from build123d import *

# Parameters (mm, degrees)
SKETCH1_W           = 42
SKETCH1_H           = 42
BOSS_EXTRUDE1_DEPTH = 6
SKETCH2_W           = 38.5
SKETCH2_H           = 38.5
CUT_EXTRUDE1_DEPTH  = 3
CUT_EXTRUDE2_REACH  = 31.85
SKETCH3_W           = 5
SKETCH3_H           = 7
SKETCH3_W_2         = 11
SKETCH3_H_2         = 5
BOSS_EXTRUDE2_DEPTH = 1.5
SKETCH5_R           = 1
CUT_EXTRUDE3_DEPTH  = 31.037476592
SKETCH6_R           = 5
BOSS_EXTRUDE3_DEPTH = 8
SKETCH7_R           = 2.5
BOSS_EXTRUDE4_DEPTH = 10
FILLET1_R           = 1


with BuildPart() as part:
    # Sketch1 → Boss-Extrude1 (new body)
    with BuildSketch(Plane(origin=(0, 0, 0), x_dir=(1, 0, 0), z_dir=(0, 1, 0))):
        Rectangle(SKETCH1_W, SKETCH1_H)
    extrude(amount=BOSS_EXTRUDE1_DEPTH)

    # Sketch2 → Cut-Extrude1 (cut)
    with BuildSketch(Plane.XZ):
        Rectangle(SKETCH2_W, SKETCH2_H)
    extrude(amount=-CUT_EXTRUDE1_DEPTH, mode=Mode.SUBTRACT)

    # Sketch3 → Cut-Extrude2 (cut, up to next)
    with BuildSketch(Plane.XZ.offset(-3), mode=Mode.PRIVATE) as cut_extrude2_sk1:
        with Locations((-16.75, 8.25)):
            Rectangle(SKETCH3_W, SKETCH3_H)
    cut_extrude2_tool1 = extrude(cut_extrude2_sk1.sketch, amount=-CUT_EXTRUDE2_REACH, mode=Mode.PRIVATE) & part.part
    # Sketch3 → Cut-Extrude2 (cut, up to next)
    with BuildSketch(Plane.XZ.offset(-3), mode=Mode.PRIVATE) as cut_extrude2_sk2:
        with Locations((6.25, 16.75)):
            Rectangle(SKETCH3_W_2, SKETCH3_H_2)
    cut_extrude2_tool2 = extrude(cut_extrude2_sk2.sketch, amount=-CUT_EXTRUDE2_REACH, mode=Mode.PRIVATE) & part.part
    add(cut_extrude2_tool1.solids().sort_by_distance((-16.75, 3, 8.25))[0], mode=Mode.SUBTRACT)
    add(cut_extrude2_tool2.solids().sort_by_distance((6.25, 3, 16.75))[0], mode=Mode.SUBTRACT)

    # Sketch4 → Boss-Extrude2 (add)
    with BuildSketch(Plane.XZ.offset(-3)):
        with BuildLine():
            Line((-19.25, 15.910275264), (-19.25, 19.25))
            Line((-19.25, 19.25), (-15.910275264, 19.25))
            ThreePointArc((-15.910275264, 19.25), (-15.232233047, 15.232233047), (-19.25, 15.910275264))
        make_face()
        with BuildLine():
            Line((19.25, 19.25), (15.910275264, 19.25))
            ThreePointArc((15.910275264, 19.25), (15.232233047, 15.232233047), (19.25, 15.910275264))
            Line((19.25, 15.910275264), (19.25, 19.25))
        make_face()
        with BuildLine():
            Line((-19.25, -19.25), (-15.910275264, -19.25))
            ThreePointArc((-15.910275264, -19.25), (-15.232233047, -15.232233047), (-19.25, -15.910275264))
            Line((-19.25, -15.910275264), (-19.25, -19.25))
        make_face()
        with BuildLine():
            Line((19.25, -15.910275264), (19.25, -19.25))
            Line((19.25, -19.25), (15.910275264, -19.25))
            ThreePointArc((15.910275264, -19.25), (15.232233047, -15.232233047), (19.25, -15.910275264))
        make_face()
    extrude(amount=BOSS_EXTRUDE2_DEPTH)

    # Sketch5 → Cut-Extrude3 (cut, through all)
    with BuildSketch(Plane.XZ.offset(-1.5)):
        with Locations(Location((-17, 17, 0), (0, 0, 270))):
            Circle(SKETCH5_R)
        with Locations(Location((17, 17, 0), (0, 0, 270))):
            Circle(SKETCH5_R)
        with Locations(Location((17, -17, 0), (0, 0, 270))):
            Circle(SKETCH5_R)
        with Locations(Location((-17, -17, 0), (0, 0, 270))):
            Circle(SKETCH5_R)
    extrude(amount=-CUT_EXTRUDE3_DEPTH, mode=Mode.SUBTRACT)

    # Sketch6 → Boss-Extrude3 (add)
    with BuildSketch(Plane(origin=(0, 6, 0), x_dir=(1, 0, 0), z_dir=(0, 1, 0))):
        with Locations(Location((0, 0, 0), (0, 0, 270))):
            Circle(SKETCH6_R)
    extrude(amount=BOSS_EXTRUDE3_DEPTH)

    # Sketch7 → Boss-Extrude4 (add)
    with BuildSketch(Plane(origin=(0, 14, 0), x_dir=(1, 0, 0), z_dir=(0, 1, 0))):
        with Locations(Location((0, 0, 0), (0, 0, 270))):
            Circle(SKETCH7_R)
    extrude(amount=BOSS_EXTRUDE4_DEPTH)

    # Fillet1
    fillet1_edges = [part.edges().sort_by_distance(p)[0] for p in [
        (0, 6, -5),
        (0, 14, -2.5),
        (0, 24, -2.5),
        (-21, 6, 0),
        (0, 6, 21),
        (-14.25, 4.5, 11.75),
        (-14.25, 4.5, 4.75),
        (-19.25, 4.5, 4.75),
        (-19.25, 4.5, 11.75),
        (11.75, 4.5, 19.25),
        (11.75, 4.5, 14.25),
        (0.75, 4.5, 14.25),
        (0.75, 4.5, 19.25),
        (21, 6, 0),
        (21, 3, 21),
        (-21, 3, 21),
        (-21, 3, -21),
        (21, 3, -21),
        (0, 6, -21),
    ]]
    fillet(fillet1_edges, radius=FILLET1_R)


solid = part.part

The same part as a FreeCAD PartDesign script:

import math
import FreeCAD as App
import Part
import Sketcher

V = App.Vector


def edges_at(feature, points):
    """Names of the edges that pass closest to the given points."""
    edges = feature.Shape.Edges
    near = lambda p: min(range(len(edges)), key=lambda i: edges[i].distToShape(Part.Vertex(*p))[0])
    return sorted({f"Edge{near(p) + 1}" for p in points})

doc = App.newDocument("Part")
params = doc.addObject("Spreadsheet::Sheet", "Params")
for row, (alias, value) in enumerate([
    ("sketch1_width", "42 mm"),
    ("pad1_length", "6 mm"),
    ("sketch2_width", "38.5 mm"),
    ("pocket1_length", "3 mm"),
    ("sketch3_width", "5 mm"),
    ("sketch3_height", "7 mm"),
    ("sketch4_width", "11 mm"),
    ("sketch4_height", "5 mm"),
    ("sketch5_radius", "2.5 mm"),
    ("pad2_length", "1.5 mm"),
    ("sketch6_diameter", "2 mm"),
    ("sketch7_diameter", "10 mm"),
    ("pad3_length", "8 mm"),
    ("sketch8_diameter", "5 mm"),
    ("pad4_length", "10 mm"),
    ("fillet_radius", "1 mm"),
], start=1):
    params.set(f"A{row}", alias)
    params.set(f"B{row}", "=" + value)
    params.setAlias(f"B{row}", alias)

body = doc.addObject("PartDesign::Body", "Body")

# Sketch on XZ plane
sketch1 = body.newObject("Sketcher::SketchObject", "Sketch")
sketch1.AttachmentSupport = (doc.getObject("XZ_Plane"), [""])
sketch1.MapMode = "FlatFace"
sketch1.addGeometry([
    Part.LineSegment(V(-21, -21, 0), V(-21, 21, 0)),
    Part.LineSegment(V(-21, 21, 0), V(21, 21, 0)),
    Part.LineSegment(V(21, 21, 0), V(21, -21, 0)),
    Part.LineSegment(V(21, -21, 0), V(-21, -21, 0)),
], False)
sketch1.addConstraint([
    Sketcher.Constraint("Coincident", 0, 2, 1, 1),
    Sketcher.Constraint("Coincident", 1, 2, 2, 1),
    Sketcher.Constraint("Coincident", 2, 2, 3, 1),
    Sketcher.Constraint("Coincident", 3, 2, 0, 1),
    Sketcher.Constraint("Vertical", 0),
    Sketcher.Constraint("Horizontal", 1),
    Sketcher.Constraint("Vertical", 2),
    Sketcher.Constraint("Horizontal", 3),
    Sketcher.Constraint("Symmetric", 0, 2, 2, 2, -1, 1),
    Sketcher.Constraint("Equal", 3, 0),
    Sketcher.Constraint("DistanceX", 1, 1, 1, 2, 42.0),
])
sketch1.setExpression("Constraints[10]", "Params.sketch1_width")
pad1 = body.newObject("PartDesign::Pad", "Pad")
pad1.Profile = sketch1
pad1.setExpression("Length", "Params.pad1_length")
pad1.Reversed = True

# Sketch on XZ plane
sketch2 = body.newObject("Sketcher::SketchObject", "Sketch001")
sketch2.AttachmentSupport = (doc.getObject("XZ_Plane"), [""])
sketch2.MapMode = "FlatFace"
sketch2.addGeometry([
    Part.LineSegment(V(-19, 19, 0), V(-19, -19, 0)),
    Part.LineSegment(V(-19, -19, 0), V(19, -19, 0)),
    Part.LineSegment(V(19, -19, 0), V(19, 19, 0)),
    Part.LineSegment(V(19, 19, 0), V(-19, 19, 0)),
], False)
sketch2.addConstraint([
    Sketcher.Constraint("Coincident", 0, 2, 1, 1),
    Sketcher.Constraint("Coincident", 1, 2, 2, 1),
    Sketcher.Constraint("Coincident", 2, 2, 3, 1),
    Sketcher.Constraint("Coincident", 3, 2, 0, 1),
    Sketcher.Constraint("Vertical", 0),
    Sketcher.Constraint("Horizontal", 1),
    Sketcher.Constraint("Vertical", 2),
    Sketcher.Constraint("Horizontal", 3),
    Sketcher.Constraint("Symmetric", 0, 2, 2, 2, -1, 1),
    Sketcher.Constraint("Equal", 3, 0),
    Sketcher.Constraint("DistanceX", 1, 1, 1, 2, 38.5),
])
sketch2.setExpression("Constraints[10]", "Params.sketch2_width")
pocket1 = body.newObject("PartDesign::Pocket", "Pocket")
pocket1.Profile = sketch2
pocket1.setExpression("Length", "Params.pocket1_length")

# Sketch on XZ plane
sketch3 = body.newObject("Sketcher::SketchObject", "Sketch002")
sketch3.AttachmentSupport = (doc.getObject("XZ_Plane"), [""])
sketch3.MapMode = "FlatFace"
sketch3.AttachmentOffset = App.Placement(V(0, 0, -3), App.Rotation())
sketch3.addGeometry([
    Part.LineSegment(V(-19, 12, 0), V(-19, 5, 0)),
    Part.LineSegment(V(-19, 5, 0), V(-14, 5, 0)),
    Part.LineSegment(V(-14, 5, 0), V(-14, 12, 0)),
    Part.LineSegment(V(-14, 12, 0), V(-19, 12, 0)),
], False)
sketch3.addConstraint([
    Sketcher.Constraint("Coincident", 0, 2, 1, 1),
    Sketcher.Constraint("Coincident", 1, 2, 2, 1),
    Sketcher.Constraint("Coincident", 2, 2, 3, 1),
    Sketcher.Constraint("Coincident", 3, 2, 0, 1),
    Sketcher.Constraint("Vertical", 0),
    Sketcher.Constraint("Horizontal", 1),
    Sketcher.Constraint("Vertical", 2),
    Sketcher.Constraint("Horizontal", 3),
    Sketcher.Constraint("DistanceX", 1, 1, 1, 2, 5.0),
    Sketcher.Constraint("DistanceY", 0, 2, 0, 1, 7.0),
    Sketcher.Constraint("DistanceX", 0, 2, -1, 1, 19.25),
    Sketcher.Constraint("DistanceY", -1, 1, 0, 2, 4.75),
])
sketch3.setExpression("Constraints[8]", "Params.sketch3_width")
sketch3.setExpression("Constraints[9]", "Params.sketch3_height")
pocket2 = body.newObject("PartDesign::Pocket", "Pocket001")
pocket2.Profile = sketch3
pocket2.Type = "UpToFirst"

# Sketch on XZ plane
sketch4 = body.newObject("Sketcher::SketchObject", "Sketch003")
sketch4.AttachmentSupport = (doc.getObject("XZ_Plane"), [""])
sketch4.MapMode = "FlatFace"
sketch4.AttachmentOffset = App.Placement(V(0, 0, -3), App.Rotation())
sketch4.addGeometry([
    Part.LineSegment(V(1, 19, 0), V(1, 14, 0)),
    Part.LineSegment(V(1, 14, 0), V(12, 14, 0)),
    Part.LineSegment(V(12, 14, 0), V(12, 19, 0)),
    Part.LineSegment(V(12, 19, 0), V(1, 19, 0)),
], False)
sketch4.addConstraint([
    Sketcher.Constraint("Coincident", 0, 2, 1, 1),
    Sketcher.Constraint("Coincident", 1, 2, 2, 1),
    Sketcher.Constraint("Coincident", 2, 2, 3, 1),
    Sketcher.Constraint("Coincident", 3, 2, 0, 1),
    Sketcher.Constraint("Vertical", 0),
    Sketcher.Constraint("Horizontal", 1),
    Sketcher.Constraint("Vertical", 2),
    Sketcher.Constraint("Horizontal", 3),
    Sketcher.Constraint("DistanceX", 1, 1, 1, 2, 11.0),
    Sketcher.Constraint("DistanceY", 0, 2, 0, 1, 5.0),
    Sketcher.Constraint("DistanceX", -1, 1, 0, 2, 0.75),
    Sketcher.Constraint("DistanceY", -1, 1, 0, 2, 14.25),
])
sketch4.setExpression("Constraints[8]", "Params.sketch4_width")
sketch4.setExpression("Constraints[9]", "Params.sketch4_height")
pocket3 = body.newObject("PartDesign::Pocket", "Pocket002")
pocket3.Profile = sketch4
pocket3.Type = "UpToFirst"

# Sketch on XZ plane
sketch5 = body.newObject("Sketcher::SketchObject", "Sketch004")
sketch5.AttachmentSupport = (doc.getObject("XZ_Plane"), [""])
sketch5.MapMode = "FlatFace"
sketch5.AttachmentOffset = App.Placement(V(0, 0, -3), App.Rotation())
sketch5.addGeometry([
    Part.LineSegment(V(-19.2, 19.2, 0), V(-19.2, 15.9, 0)),  # 0
    Part.ArcOfCircle(Part.Circle(V(-17, 17, 0), V(0, 0, 1), 2.5), math.radians(-154), math.radians(64)),  # 1
    Part.LineSegment(V(-15.9, 19.2, 0), V(-19.2, 19.2, 0)),  # 2
    Part.LineSegment(V(19.2, 19.2, 0), V(15.9, 19.2, 0)),  # 3
    Part.ArcOfCircle(Part.Circle(V(17, 17, 0), V(0, 0, 1), 2.5), math.radians(116), math.radians(334)),  # 4
    Part.LineSegment(V(19.2, 15.9, 0), V(19.2, 19.2, 0)),  # 5
    Part.LineSegment(V(-19.2, -19.2, 0), V(-15.9, -19.2, 0)),  # 6
    Part.ArcOfCircle(Part.Circle(V(-17, -17, 0), V(0, 0, 1), 2.5), math.radians(-64), math.radians(154)),  # 7
    Part.LineSegment(V(-19.2, -15.9, 0), V(-19.2, -19.2, 0)),  # 8
    Part.LineSegment(V(19.2, -19.2, 0), V(19.2, -15.9, 0)),  # 9
    Part.ArcOfCircle(Part.Circle(V(17, -17, 0), V(0, 0, 1), 2.5), math.radians(26), math.radians(244)),  # 10
    Part.LineSegment(V(15.9, -19.2, 0), V(19.2, -19.2, 0)),  # 11
], False)
sketch5.addConstraint([
    Sketcher.Constraint("Coincident", 0, 2, 1, 1),
    Sketcher.Constraint("Coincident", 1, 2, 2, 1),
    Sketcher.Constraint("Coincident", 2, 2, 0, 1),
    Sketcher.Constraint("Coincident", 3, 2, 4, 1),
    Sketcher.Constraint("Coincident", 4, 2, 5, 1),
    Sketcher.Constraint("Coincident", 5, 2, 3, 1),
    Sketcher.Constraint("Coincident", 6, 2, 7, 1),
    Sketcher.Constraint("Coincident", 7, 2, 8, 1),
    Sketcher.Constraint("Coincident", 8, 2, 6, 1),
    Sketcher.Constraint("Coincident", 9, 2, 10, 1),
    Sketcher.Constraint("Coincident", 10, 2, 11, 1),
    Sketcher.Constraint("Coincident", 11, 2, 9, 1),
    Sketcher.Constraint("Vertical", 0),
    Sketcher.Constraint("Horizontal", 2),
    Sketcher.Constraint("Horizontal", 3),
    Sketcher.Constraint("Vertical", 5),
    Sketcher.Constraint("Horizontal", 6),
    Sketcher.Constraint("Vertical", 8),
    Sketcher.Constraint("Vertical", 9),
    Sketcher.Constraint("Horizontal", 11),
    Sketcher.Constraint("Equal", 1, 4),
    Sketcher.Constraint("Equal", 4, 7),
    Sketcher.Constraint("Equal", 7, 10),
    Sketcher.Constraint("Symmetric", 4, 3, 7, 3, -1, 1),
    Sketcher.Constraint("Symmetric", 1, 3, 10, 3, -1, 1),
    Sketcher.Constraint("Symmetric", 5, 2, 8, 2, -1, 1),
    Sketcher.Constraint("Symmetric", 2, 2, 11, 2, -1, 1),
    Sketcher.Constraint("Symmetric", 1, 3, 4, 3, -2),
    Sketcher.Constraint("Symmetric", 2, 2, 5, 2, -2),
    Sketcher.Constraint("Equal", 11, 0),
    Sketcher.Constraint("Radius", 1, 2.5),
    Sketcher.Constraint("DistanceX", 1, 3, -1, 1, 17.0),
    Sketcher.Constraint("DistanceY", -1, 1, 1, 3, 17.0),
    Sketcher.Constraint("DistanceY", 6, 2, 1, 2, 38.5),
])
sketch5.setExpression("Constraints[30]", "Params.sketch5_radius")
pad2 = body.newObject("PartDesign::Pad", "Pad001")
pad2.Profile = sketch5
pad2.setExpression("Length", "Params.pad2_length")

# Sketch on XZ plane
sketch6 = body.newObject("Sketcher::SketchObject", "Sketch005")
sketch6.AttachmentSupport = (doc.getObject("XZ_Plane"), [""])
sketch6.MapMode = "FlatFace"
sketch6.AttachmentOffset = App.Placement(V(0, 0, -1.5), App.Rotation())
sketch6.addGeometry([
    Part.Circle(V(-17, 17, 0), V(0, 0, 1), 1),
    Part.Circle(V(17, 17, 0), V(0, 0, 1), 1),
    Part.Circle(V(17, -17, 0), V(0, 0, 1), 1),
    Part.Circle(V(-17, -17, 0), V(0, 0, 1), 1),
], False)
sketch6.addConstraint([
    Sketcher.Constraint("Equal", 0, 1),
    Sketcher.Constraint("Equal", 1, 2),
    Sketcher.Constraint("Equal", 2, 3),
    Sketcher.Constraint("Symmetric", 0, 3, 2, 3, -1, 1),
    Sketcher.Constraint("Symmetric", 1, 3, 3, 3, -1, 1),
    Sketcher.Constraint("Symmetric", 0, 3, 1, 3, -2),
    Sketcher.Constraint("Diameter", 0, 2.0),
    Sketcher.Constraint("DistanceX", 0, 3, -1, 1, 17.0),
    Sketcher.Constraint("DistanceY", -1, 1, 0, 3, 17.0),
])
sketch6.setExpression("Constraints[6]", "Params.sketch6_diameter")
pocket4 = body.newObject("PartDesign::Pocket", "Pocket003")
pocket4.Profile = sketch6
pocket4.Type = "ThroughAll"

# Sketch on XZ plane
sketch7 = body.newObject("Sketcher::SketchObject", "Sketch006")
sketch7.AttachmentSupport = (doc.getObject("XZ_Plane"), [""])
sketch7.MapMode = "FlatFace"
sketch7.AttachmentOffset = App.Placement(V(0, 0, -6), App.Rotation())
sketch7.addGeometry(Part.Circle(V(0, 0, 0), V(0, 0, 1), 5), False)
sketch7.addConstraint([
    Sketcher.Constraint("Coincident", 0, 3, -1, 1),
    Sketcher.Constraint("Diameter", 0, 10.0),
])
sketch7.setExpression("Constraints[1]", "Params.sketch7_diameter")
pad3 = body.newObject("PartDesign::Pad", "Pad002")
pad3.Profile = sketch7
pad3.setExpression("Length", "Params.pad3_length")
pad3.Reversed = True

# Sketch on XZ plane
sketch8 = body.newObject("Sketcher::SketchObject", "Sketch007")
sketch8.AttachmentSupport = (doc.getObject("XZ_Plane"), [""])
sketch8.MapMode = "FlatFace"
sketch8.AttachmentOffset = App.Placement(V(0, 0, -14), App.Rotation())
sketch8.addGeometry(Part.Circle(V(0, 0, 0), V(0, 0, 1), 2.5), False)
sketch8.addConstraint([
    Sketcher.Constraint("Coincident", 0, 3, -1, 1),
    Sketcher.Constraint("Diameter", 0, 5.0),
])
sketch8.setExpression("Constraints[1]", "Params.sketch8_diameter")
pad4 = body.newObject("PartDesign::Pad", "Pad003")
pad4.Profile = sketch8
pad4.setExpression("Length", "Params.pad4_length")
pad4.Reversed = True
doc.recompute()

fillet = body.newObject("PartDesign::Fillet", "Fillet")
fillet.Base = (pad4, edges_at(pad4, [
    (0, 6, -5),
    (0, 14, -2.5),
    (0, 24, -2.5),
    (-21, 6, 0),
    (0, 6, 21),
    (-14.25, 4.5, 11.75),
    (-14.25, 4.5, 4.75),
    (-19.25, 4.5, 4.75),
    (-19.25, 4.5, 11.75),
    (11.75, 4.5, 19.25),
    (11.75, 4.5, 14.25),
    (0.75, 4.5, 14.25),
    (0.75, 4.5, 19.25),
    (21, 6, 0),
    (21, 3, 21),
    (-21, 3, 21),
    (-21, 3, -21),
    (21, 3, -21),
    (0, 6, -21),
]))
fillet.setExpression("Radius", "Params.fillet_radius")

doc.recompute()
